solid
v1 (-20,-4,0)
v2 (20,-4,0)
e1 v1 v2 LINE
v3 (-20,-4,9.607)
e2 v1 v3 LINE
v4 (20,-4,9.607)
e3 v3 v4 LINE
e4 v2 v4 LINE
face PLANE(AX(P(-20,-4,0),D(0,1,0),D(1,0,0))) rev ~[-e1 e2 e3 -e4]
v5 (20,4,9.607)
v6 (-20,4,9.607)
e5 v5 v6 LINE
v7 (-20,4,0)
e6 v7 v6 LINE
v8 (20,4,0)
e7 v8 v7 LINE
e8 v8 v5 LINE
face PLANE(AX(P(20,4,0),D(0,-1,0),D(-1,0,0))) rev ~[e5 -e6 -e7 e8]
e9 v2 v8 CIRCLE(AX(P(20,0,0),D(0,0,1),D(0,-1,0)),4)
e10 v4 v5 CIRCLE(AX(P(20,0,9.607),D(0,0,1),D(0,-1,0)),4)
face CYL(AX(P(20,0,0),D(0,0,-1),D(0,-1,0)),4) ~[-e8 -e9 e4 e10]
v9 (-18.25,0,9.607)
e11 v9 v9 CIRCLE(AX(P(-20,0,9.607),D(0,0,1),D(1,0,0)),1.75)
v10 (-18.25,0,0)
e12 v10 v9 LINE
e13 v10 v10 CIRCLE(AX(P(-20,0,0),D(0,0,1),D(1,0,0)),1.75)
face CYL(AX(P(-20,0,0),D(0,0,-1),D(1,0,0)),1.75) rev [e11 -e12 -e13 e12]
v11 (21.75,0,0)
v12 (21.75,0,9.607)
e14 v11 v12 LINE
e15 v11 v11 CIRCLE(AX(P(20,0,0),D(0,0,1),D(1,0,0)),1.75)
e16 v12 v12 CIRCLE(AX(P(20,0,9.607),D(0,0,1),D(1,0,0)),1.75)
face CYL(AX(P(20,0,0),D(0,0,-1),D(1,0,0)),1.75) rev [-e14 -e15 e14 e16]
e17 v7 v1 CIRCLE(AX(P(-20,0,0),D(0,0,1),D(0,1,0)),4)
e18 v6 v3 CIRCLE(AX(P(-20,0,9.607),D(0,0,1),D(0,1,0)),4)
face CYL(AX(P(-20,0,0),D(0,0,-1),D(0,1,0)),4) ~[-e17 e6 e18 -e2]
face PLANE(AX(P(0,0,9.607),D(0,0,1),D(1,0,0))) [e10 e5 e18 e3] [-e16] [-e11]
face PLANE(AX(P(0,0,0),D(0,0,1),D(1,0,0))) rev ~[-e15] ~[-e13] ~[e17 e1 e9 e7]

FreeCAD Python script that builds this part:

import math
import FreeCAD as App
import Part
import Sketcher
Q = App.Units.Quantity

doc = App.newDocument("Part")
body = doc.addObject("PartDesign::Body", "Body")

# Sketch on XY plane
sketch1 = doc.addObject("Sketcher::SketchObject", "Sketch")
body.addObject(sketch1)
sketch1.AttachmentSupport = (doc.XY_Plane, [""])
sketch1.MapMode = "FlatFace"
sketch1.addGeometry([
    Part.ArcOfCircle(Part.Circle(App.Vector(-20, 0, 0), App.Vector(0, 0, 1), 4), math.radians(90), math.radians(270)),  # 0
    Part.LineSegment(App.Vector(-20, -4, 0), App.Vector(20, -4, 0)),  # 1
    Part.ArcOfCircle(Part.Circle(App.Vector(20, 0, 0), App.Vector(0, 0, 1), 4), math.radians(-90), math.radians(90)),  # 2
    Part.LineSegment(App.Vector(20, 4, 0), App.Vector(-20, 4, 0)),  # 3
    Part.Circle(App.Vector(-20, 0, 0), App.Vector(0, 0, 1), 1.75),  # 4
    Part.Circle(App.Vector(20, 0, 0), App.Vector(0, 0, 1), 1.75),  # 5
], False)
sketch1.addConstraint([
    Sketcher.Constraint("Tangent", 0, 2, 1, 1),
    Sketcher.Constraint("Tangent", 1, 2, 2, 1),
    Sketcher.Constraint("Tangent", 2, 2, 3, 1),
    Sketcher.Constraint("Tangent", 3, 2, 0, 1),
    Sketcher.Constraint("Horizontal", 1),
    Sketcher.Constraint("Horizontal", 3),
    Sketcher.Constraint("Coincident", 4, 3, 0, 3),
    Sketcher.Constraint("Coincident", 5, 3, 2, 3),
    Sketcher.Constraint("Equal", 4, 5),
    Sketcher.Constraint("Symmetric", 0, 3, 2, 3, -1, 1),
    Sketcher.Constraint("Radius", 0, Q("4 mm")),
    Sketcher.Constraint("Diameter", 4, Q("3.5 mm")),
    Sketcher.Constraint("DistanceX", 0, 3, -1, 1, Q("20 mm")),
])
pad1 = doc.addObject("PartDesign::Pad", "Pad")
body.addObject(pad1)
pad1.Profile = sketch1
pad1.Length = 9.607

doc.recompute()
